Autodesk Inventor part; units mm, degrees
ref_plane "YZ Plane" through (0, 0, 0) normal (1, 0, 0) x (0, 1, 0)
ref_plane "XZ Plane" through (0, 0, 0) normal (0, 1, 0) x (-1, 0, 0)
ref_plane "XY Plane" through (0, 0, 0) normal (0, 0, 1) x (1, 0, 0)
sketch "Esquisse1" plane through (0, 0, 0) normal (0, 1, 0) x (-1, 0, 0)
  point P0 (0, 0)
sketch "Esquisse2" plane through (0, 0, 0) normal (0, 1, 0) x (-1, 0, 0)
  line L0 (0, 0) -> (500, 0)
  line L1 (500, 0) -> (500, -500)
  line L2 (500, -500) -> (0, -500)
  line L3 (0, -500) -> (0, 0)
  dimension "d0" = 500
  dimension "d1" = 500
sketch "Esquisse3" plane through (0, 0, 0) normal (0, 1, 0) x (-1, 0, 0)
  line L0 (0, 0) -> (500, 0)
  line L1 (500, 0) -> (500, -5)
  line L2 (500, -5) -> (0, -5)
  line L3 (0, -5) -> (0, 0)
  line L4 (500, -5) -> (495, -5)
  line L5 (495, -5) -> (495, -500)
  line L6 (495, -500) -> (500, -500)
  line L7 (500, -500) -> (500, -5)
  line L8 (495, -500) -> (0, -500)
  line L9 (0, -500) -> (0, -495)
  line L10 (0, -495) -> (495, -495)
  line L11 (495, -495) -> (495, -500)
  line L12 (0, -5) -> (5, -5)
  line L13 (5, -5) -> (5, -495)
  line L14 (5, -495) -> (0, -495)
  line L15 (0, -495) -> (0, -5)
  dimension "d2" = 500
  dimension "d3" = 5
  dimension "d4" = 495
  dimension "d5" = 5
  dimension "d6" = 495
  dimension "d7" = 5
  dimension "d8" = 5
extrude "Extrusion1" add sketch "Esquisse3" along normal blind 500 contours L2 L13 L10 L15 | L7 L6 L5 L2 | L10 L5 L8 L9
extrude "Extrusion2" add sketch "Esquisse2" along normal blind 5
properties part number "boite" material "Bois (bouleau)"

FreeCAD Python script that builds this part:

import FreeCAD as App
import Part
import Sketcher

V = App.Vector


def add_polygon(sketch, points):
    """Adds a closed chain of lines whose ends are joined by coincident constraints."""
    first, n = sketch.GeometryCount, len(points)
    for a, b in zip(points, points[1:] + points[:1]):
        sketch.addGeometry(Part.LineSegment(App.Vector(*a, 0), App.Vector(*b, 0)), False)
    for i in range(n):
        sketch.addConstraint(Sketcher.Constraint("Coincident", first + i, 2, first + (i + 1) % n, 1))

doc = App.newDocument("Part")
params = doc.addObject("Spreadsheet::Sheet", "Params")
for row, (alias, value) in enumerate([
    ("sketch1_width", "5 mm"),
    ("sketch1_width2", "500 mm"),
    ("sketch1_height", "495 mm"),
    ("pad1_length", "500 mm"),
    ("sketch2_width", "500 mm"),
    ("pad2_length", "5 mm"),
], start=1):
    params.set(f"A{row}", alias)
    params.set(f"B{row}", "=" + value)
    params.setAlias(f"B{row}", alias)

body = doc.addObject("PartDesign::Body", "Body")

# Sketch on XZ plane
sketch1 = body.newObject("Sketcher::SketchObject", "Sketch")
sketch1.AttachmentSupport = (doc.getObject("XZ_Plane"), [""])
sketch1.MapMode = "FlatFace"
add_polygon(sketch1, [(-5, -5), (0, -5), (0, -500), (-500, -500), (-500, -5), (-495, -5), (-495, -495), (-5, -495)])  # lines 0-7
sketch1.addConstraint([
    Sketcher.Constraint("Horizontal", 0),
    Sketcher.Constraint("Vertical", 1),
    Sketcher.Constraint("Horizontal", 2),
    Sketcher.Constraint("Vertical", 3),
    Sketcher.Constraint("Horizontal", 4),
    Sketcher.Constraint("Vertical", 5),
    Sketcher.Constraint("Horizontal", 6),
    Sketcher.Constraint("Vertical", 7),
    Sketcher.Constraint("PointOnObject", 0, 2, -2),
    Sketcher.Constraint("Horizontal", 0, 2, 3, 2),
    Sketcher.Constraint("Equal", 0, 4),
    Sketcher.Constraint("Equal", 6, 5),
    Sketcher.Constraint("DistanceX", 0, 1, 0, 2, 5.0),
    Sketcher.Constraint("DistanceX", 2, 2, 2, 1, 500.0),
    Sketcher.Constraint("DistanceY", 1, 2, 1, 1, 495.0),
    Sketcher.Constraint("DistanceY", 0, 2, -1, 1, 5.0),
])
sketch1.setExpression("Constraints[20]", "Params.sketch1_width")
sketch1.setExpression("Constraints[21]", "Params.sketch1_width2")
sketch1.setExpression("Constraints[22]", "Params.sketch1_height")
pad1 = body.newObject("PartDesign::Pad", "Pad")
pad1.Profile = sketch1
pad1.setExpression("Length", "Params.pad1_length")
pad1.Reversed = True

# Sketch on XZ plane
sketch2 = body.newObject("Sketcher::SketchObject", "Sketch001")
sketch2.AttachmentSupport = (doc.getObject("XZ_Plane"), [""])
sketch2.MapMode = "FlatFace"
add_polygon(sketch2, [(-500, 0), (0, 0), (0, -500), (-500, -500)])  # lines 0-3
sketch2.addConstraint([
    Sketcher.Constraint("Horizontal", 0),
    Sketcher.Constraint("Vertical", 1),
    Sketcher.Constraint("Horizontal", 2),
    Sketcher.Constraint("Vertical", 3),
    Sketcher.Constraint("Coincident", 0, 2, -1, 1),
    Sketcher.Constraint("Equal", 2, 1),
    Sketcher.Constraint("DistanceX", 0, 1, 0, 2, 500.0),
])
sketch2.setExpression("Constraints[10]", "Params.sketch2_width")
pad2 = body.newObject("PartDesign::Pad", "Pad001")
pad2.Profile = sketch2
pad2.setExpression("Length", "Params.pad2_length")
pad2.Reversed = True

doc.recompute()
